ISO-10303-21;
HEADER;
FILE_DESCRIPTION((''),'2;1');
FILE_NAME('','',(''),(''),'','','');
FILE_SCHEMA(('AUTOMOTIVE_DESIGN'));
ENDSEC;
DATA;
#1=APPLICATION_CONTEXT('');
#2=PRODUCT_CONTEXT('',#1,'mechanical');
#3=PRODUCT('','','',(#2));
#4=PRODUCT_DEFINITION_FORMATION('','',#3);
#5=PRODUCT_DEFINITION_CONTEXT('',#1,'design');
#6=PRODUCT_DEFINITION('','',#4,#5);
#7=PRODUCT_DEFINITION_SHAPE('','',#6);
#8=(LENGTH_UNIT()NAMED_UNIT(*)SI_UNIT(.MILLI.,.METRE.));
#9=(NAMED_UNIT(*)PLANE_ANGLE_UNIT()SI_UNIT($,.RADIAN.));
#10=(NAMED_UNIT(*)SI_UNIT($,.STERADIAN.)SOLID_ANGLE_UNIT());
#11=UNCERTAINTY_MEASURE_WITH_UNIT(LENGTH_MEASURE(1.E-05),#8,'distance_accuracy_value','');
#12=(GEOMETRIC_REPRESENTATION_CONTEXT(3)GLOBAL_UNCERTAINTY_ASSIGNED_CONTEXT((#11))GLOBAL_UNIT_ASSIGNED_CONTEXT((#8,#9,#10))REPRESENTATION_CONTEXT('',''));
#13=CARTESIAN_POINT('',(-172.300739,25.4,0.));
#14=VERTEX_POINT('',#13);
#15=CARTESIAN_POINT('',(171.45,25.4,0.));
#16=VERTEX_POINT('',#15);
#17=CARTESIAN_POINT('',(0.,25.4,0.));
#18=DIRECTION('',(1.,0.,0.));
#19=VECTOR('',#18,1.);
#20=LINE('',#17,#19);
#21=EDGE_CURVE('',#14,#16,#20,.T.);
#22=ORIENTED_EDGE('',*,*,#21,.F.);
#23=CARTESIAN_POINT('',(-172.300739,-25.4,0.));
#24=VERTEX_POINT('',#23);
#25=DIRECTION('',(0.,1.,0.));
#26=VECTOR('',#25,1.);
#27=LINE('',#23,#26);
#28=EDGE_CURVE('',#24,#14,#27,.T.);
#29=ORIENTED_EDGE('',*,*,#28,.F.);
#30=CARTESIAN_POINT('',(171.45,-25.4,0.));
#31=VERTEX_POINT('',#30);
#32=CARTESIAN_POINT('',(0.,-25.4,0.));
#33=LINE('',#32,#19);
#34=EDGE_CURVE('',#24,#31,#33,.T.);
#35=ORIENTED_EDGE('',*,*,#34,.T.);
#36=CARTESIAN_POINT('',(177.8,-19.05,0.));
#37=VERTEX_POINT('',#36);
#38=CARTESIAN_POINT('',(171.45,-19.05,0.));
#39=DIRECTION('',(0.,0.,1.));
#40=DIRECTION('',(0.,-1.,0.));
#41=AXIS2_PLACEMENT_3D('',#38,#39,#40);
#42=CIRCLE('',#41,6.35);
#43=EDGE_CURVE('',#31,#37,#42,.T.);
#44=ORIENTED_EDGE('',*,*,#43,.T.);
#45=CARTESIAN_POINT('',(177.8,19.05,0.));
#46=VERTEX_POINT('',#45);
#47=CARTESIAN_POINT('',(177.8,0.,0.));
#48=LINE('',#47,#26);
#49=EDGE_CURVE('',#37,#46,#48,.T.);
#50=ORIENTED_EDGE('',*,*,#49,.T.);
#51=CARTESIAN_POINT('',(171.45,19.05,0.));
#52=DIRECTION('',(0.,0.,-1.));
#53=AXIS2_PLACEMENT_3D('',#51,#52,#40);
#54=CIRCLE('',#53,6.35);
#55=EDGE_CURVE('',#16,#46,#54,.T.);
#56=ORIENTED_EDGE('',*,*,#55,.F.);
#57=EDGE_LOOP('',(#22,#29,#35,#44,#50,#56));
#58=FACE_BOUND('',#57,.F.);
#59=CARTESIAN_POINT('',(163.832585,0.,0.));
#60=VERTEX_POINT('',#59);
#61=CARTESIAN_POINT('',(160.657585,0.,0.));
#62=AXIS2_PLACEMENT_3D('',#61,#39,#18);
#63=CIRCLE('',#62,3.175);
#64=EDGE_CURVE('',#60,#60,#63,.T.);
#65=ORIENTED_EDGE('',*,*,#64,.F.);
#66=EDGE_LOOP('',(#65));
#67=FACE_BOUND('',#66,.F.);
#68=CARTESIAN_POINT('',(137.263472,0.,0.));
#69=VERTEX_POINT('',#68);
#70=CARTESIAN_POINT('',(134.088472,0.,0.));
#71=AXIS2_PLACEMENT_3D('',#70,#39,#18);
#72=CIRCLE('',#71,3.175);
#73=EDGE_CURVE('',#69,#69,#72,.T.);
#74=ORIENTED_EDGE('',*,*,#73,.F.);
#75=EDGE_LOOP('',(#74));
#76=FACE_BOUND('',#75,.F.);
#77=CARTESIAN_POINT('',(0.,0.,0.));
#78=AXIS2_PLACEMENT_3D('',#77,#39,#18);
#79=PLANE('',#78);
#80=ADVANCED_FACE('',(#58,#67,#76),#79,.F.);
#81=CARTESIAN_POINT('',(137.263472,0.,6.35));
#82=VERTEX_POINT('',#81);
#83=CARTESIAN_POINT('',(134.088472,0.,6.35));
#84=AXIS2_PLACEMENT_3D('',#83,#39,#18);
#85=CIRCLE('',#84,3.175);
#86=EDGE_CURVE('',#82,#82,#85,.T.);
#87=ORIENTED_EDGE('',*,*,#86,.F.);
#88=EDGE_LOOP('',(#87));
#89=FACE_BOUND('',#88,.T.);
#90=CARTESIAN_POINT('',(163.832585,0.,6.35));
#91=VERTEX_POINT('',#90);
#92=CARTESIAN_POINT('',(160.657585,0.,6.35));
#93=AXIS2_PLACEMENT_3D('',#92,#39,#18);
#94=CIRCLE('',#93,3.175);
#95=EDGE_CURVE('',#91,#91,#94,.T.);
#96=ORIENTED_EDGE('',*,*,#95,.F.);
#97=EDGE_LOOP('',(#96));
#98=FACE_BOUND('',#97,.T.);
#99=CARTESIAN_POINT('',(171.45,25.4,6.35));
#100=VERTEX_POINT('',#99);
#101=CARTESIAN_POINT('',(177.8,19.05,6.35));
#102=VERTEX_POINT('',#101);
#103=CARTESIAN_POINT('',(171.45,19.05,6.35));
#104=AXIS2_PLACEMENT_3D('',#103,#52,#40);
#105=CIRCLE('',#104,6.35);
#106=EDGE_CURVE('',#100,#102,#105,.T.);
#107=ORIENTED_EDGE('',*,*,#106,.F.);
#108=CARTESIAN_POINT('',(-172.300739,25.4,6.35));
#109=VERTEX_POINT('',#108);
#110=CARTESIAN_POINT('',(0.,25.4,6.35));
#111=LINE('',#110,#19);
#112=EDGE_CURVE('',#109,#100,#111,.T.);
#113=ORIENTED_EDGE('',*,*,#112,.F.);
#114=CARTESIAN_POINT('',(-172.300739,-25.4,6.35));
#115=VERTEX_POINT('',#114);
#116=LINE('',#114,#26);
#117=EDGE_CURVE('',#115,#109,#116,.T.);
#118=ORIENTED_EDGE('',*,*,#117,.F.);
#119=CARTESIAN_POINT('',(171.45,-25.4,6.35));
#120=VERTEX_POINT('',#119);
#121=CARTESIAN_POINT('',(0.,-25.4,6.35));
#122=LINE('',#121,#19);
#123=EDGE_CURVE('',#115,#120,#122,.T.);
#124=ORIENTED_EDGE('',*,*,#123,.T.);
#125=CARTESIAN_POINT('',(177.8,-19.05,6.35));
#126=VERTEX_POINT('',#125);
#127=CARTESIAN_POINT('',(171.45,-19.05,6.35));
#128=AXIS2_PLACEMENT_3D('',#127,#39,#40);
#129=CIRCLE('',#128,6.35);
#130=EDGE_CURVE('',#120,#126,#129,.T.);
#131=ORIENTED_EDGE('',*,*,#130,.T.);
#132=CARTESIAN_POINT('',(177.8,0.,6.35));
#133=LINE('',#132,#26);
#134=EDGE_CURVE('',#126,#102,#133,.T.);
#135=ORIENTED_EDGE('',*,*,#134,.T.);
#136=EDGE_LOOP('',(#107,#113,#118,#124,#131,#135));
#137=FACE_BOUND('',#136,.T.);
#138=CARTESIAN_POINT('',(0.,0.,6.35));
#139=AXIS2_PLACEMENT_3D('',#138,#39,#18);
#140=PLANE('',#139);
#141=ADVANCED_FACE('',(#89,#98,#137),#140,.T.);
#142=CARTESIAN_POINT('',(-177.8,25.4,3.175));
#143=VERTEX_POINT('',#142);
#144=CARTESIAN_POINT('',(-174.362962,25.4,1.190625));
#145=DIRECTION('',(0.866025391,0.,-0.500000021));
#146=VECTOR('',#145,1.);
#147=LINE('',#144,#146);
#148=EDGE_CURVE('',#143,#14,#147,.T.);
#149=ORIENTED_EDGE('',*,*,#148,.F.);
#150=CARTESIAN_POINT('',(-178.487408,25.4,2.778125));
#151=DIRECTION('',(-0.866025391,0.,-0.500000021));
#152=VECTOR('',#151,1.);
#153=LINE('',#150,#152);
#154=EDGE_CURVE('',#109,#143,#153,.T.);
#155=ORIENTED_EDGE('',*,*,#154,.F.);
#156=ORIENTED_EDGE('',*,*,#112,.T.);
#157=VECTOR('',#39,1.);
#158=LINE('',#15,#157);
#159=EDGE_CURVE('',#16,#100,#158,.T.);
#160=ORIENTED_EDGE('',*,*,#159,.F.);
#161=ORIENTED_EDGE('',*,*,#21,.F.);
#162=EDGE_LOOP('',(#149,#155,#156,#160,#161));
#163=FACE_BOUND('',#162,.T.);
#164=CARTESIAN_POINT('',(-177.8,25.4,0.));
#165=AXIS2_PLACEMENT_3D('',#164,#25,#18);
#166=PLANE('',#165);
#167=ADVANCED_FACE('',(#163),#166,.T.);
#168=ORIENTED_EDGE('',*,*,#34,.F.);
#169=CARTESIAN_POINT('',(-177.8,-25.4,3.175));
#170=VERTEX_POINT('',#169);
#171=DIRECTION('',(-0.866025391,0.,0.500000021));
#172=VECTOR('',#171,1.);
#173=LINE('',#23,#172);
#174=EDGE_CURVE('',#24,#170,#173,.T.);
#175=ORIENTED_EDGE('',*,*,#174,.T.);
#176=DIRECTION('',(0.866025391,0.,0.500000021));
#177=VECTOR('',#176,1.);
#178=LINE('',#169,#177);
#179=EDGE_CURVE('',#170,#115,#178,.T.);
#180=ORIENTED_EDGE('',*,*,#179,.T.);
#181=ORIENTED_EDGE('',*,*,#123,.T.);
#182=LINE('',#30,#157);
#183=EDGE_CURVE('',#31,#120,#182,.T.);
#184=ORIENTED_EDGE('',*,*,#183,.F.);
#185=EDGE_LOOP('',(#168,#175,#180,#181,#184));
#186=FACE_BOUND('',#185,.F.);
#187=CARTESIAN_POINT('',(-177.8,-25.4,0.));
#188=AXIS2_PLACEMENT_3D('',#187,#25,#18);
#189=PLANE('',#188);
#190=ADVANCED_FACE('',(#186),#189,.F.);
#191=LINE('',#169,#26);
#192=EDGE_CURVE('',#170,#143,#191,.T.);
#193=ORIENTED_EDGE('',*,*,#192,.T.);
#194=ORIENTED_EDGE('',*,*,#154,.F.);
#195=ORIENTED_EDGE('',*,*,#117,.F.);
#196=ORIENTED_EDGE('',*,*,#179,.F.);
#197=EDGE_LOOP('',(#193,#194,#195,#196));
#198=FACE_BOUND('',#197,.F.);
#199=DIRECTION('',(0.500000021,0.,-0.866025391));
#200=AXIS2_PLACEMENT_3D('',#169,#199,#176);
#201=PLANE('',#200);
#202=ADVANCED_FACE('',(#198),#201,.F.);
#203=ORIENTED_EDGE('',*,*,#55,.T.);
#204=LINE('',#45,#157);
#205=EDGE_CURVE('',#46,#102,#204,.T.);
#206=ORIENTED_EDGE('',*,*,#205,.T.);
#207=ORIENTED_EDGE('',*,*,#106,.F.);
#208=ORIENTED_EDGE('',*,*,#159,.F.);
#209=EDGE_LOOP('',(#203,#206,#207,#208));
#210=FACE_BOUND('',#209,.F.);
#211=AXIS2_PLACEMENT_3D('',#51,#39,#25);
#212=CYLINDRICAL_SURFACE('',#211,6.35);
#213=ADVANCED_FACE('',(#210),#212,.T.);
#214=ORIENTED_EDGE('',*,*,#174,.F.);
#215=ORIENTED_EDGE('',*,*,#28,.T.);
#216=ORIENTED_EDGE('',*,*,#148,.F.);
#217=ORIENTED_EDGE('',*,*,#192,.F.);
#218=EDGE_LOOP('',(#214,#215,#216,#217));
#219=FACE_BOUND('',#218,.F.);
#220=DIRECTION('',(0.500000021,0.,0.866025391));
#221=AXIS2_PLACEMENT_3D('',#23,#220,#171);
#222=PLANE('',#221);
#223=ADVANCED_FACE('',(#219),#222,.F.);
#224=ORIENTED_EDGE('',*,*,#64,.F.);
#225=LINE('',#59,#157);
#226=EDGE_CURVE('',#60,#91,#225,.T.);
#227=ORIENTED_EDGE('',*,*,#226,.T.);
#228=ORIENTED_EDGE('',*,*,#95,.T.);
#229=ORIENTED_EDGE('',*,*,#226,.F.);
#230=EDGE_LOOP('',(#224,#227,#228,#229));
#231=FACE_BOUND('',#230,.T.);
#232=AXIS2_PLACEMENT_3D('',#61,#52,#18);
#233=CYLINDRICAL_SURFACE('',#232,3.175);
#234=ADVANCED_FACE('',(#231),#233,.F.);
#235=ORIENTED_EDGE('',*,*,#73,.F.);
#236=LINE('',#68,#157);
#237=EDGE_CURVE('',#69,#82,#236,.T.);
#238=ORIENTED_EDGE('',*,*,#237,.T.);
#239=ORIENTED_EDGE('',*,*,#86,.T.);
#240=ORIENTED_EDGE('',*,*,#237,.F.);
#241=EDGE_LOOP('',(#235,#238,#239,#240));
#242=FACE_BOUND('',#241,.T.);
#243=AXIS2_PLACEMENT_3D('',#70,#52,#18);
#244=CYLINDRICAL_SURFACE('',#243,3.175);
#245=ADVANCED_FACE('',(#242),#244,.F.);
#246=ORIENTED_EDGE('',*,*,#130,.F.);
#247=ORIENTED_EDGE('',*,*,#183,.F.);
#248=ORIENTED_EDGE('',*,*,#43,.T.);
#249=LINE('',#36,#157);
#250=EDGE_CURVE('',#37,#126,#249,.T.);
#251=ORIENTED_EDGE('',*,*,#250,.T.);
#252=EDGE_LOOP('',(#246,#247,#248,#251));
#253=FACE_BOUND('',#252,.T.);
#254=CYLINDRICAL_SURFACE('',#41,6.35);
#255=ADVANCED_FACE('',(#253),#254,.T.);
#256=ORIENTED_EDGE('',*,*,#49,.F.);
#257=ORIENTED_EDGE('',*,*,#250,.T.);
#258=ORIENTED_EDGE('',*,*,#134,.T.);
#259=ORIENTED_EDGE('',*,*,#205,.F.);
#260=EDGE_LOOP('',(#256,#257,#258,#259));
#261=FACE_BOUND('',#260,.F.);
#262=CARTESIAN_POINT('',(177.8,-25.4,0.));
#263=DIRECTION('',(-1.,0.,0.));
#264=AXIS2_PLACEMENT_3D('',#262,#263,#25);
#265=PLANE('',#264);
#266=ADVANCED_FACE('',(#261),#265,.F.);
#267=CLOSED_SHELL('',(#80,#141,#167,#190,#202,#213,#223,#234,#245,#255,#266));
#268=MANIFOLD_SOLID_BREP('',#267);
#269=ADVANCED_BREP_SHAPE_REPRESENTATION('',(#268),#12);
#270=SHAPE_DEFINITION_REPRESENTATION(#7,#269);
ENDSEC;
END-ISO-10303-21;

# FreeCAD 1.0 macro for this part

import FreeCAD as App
import Part
import Sketcher
from FreeCAD import Vector
Q = App.Units.Quantity


def edges_at(feature, points):
    """Names of the edges that pass closest to the given points."""
    edges = feature.Shape.Edges
    near = lambda p: min(range(len(edges)), key=lambda i: edges[i].distToShape(Part.Vertex(*p))[0])
    return sorted({f"Edge{near(p) + 1}" for p in points})


def add_polygon(sketch, points):
    """Adds a closed chain of lines whose ends are joined by coincident constraints."""
    first, n = sketch.GeometryCount, len(points)
    for a, b in zip(points, points[1:] + points[:1]):
        sketch.addGeometry(Part.LineSegment(App.Vector(*a, 0), App.Vector(*b, 0)), False)
    for i in range(n):
        sketch.addConstraint(Sketcher.Constraint("Coincident", first + i, 2, first + (i + 1) % n, 1))

doc = App.newDocument("Part")
body = doc.addObject("PartDesign::Body", "Body")

sketch1 = body.newObject("Sketcher::SketchObject", "Sketch")
sketch1.AttachmentSupport = (doc.getObject("XY_Plane"), [""])
sketch1.MapMode = "FlatFace"
add_polygon(sketch1, [(-177.8, 25.4), (-177.8, -25.4), (177.8, -25.4), (177.8, 25.4)])
sketch1.addGeometry(Part.Circle(Vector(134.1, 0, 0), Vector(0, 0, 1), 3.2), False)
sketch1.addGeometry(Part.Circle(Vector(160.7, 0, 0), Vector(0, 0, 1), 3.2), False)
sketch1.addConstraint(Sketcher.Constraint("Vertical", 0))
sketch1.addConstraint(Sketcher.Constraint("Horizontal", 1))
sketch1.addConstraint(Sketcher.Constraint("Vertical", 2))
sketch1.addConstraint(Sketcher.Constraint("Horizontal", 3))
sketch1.addConstraint(Sketcher.Constraint("Equal", 4, 5))
sketch1.addConstraint(Sketcher.Constraint("Symmetric", 0, 2, 2, 2, -1, 1))
sketch1.addConstraint(Sketcher.Constraint("PointOnObject", 4, 3, -1))
sketch1.addConstraint(Sketcher.Constraint("PointOnObject", 5, 3, -1))
sketch1.addConstraint(Sketcher.Constraint("Diameter", 4, Q("0.25 in")))
sketch1.addConstraint(Sketcher.Constraint("DistanceX", 1, 1, 1, 2, Q("14 in")))
sketch1.addConstraint(Sketcher.Constraint("DistanceY", 0, 2, 0, 1, Q("2 in")))
sketch1.addConstraint(Sketcher.Constraint("DistanceX", -1, 1, 4, 3, 134.088472))
sketch1.addConstraint(Sketcher.Constraint("DistanceX", -1, 1, 5, 3, 160.657585))
pad1 = body.newObject("PartDesign::Pad", "Pad")
pad1.Profile = sketch1
pad1.Length = Q("0.25 in")
doc.recompute()

fillet = body.newObject("PartDesign::Fillet", "Fillet")
fillet.Base = (pad1, edges_at(pad1, [(177.8, -25.4, 3.175), (177.8, 25.4, 3.175)]))
fillet.Radius = Q("0.25 in")

sketch2 = body.newObject("Sketcher::SketchObject", "Sketch001")
sketch2.AttachmentSupport = (doc.getObject("XZ_Plane"), [""])
sketch2.MapMode = "FlatFace"
sketch2.AttachmentOffset = App.Placement(Vector(0, 0, 1 * 25.4), App.Rotation())
add_polygon(sketch2, [(-177.8, 6.3), (-177.8, 3.2), (-172.3, 6.3)])
add_polygon(sketch2, [(-172.3, 0), (-177.8, 3.2), (-177.8, 0)])
sketch2.addConstraint(Sketcher.Constraint("Vertical", 0))
sketch2.addConstraint(Sketcher.Constraint("Horizontal", 2))
sketch2.addConstraint(Sketcher.Constraint("Vertical", 4))
sketch2.addConstraint(Sketcher.Constraint("Horizontal", 5))
sketch2.addConstraint(Sketcher.Constraint("Coincident", 3, 2, 0, 2))
sketch2.addConstraint(Sketcher.Constraint("PointOnObject", 4, 2, -1))
sketch2.addConstraint(Sketcher.Constraint("Vertical", 1, 2, 5, 2))
sketch2.addConstraint(Sketcher.Constraint("Equal", 0, 4))
sketch2.addConstraint(Sketcher.Constraint("DistanceX", 0, 2, -1, 1, Q("7 in")))
sketch2.addConstraint(Sketcher.Constraint("Angle", 1, Q("30.000001 deg")))
sketch2.addConstraint(Sketcher.Constraint("Distance", 1, Q("0.25 in")))
pocket1 = body.newObject("PartDesign::Pocket", "Pocket")
pocket1.Profile = sketch2
pocket1.Type = "ThroughAll"

doc.recompute()
